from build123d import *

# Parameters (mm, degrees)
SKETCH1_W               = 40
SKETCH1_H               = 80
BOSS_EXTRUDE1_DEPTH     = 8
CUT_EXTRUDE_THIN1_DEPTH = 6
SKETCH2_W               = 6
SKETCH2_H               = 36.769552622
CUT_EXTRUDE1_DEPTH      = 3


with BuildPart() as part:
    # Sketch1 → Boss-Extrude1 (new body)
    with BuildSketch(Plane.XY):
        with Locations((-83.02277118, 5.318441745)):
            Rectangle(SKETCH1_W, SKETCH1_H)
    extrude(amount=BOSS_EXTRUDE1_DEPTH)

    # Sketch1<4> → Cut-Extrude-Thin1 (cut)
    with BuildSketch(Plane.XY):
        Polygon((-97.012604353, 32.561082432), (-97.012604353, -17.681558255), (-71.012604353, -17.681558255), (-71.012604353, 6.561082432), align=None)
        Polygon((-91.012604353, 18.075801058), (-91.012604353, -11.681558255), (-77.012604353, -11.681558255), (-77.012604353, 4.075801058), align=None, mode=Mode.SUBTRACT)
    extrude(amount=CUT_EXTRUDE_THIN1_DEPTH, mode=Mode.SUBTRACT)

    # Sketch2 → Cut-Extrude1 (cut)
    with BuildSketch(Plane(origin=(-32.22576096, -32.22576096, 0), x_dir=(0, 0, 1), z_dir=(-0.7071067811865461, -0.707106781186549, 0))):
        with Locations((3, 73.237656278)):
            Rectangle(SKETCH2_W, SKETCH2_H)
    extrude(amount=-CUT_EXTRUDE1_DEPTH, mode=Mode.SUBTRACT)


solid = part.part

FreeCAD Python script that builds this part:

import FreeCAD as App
import Part
import Sketcher
from FreeCAD import Vector
Q = App.Units.Quantity


def add_polygon(sketch, points):
    """Adds a closed chain of lines whose ends are joined by coincident constraints."""
    first, n = sketch.GeometryCount, len(points)
    for a, b in zip(points, points[1:] + points[:1]):
        sketch.addGeometry(Part.LineSegment(App.Vector(*a, 0), App.Vector(*b, 0)), False)
    for i in range(n):
        sketch.addConstraint(Sketcher.Constraint("Coincident", first + i, 2, first + (i + 1) % n, 1))

doc = App.newDocument("Part")
body = doc.addObject("PartDesign::Body", "Body")

# Sketch on XY plane
sketch1 = body.newObject("Sketcher::SketchObject", "Sketch")
sketch1.AttachmentSupport = (doc.getObject("XY_Plane"), [""])
sketch1.MapMode = "FlatFace"
add_polygon(sketch1, [(-103, 45), (-103, -35), (-63, -35), (-63, 45)])  # lines 0-3
sketch1.addConstraint(Sketcher.Constraint("Vertical", 0))
sketch1.addConstraint(Sketcher.Constraint("Horizontal", 1))
sketch1.addConstraint(Sketcher.Constraint("Vertical", 2))
sketch1.addConstraint(Sketcher.Constraint("Horizontal", 3))
sketch1.addConstraint(Sketcher.Constraint("DistanceX", 1, 1, 1, 2, 40.0))
sketch1.addConstraint(Sketcher.Constraint("DistanceY", 0, 2, 0, 1, 80.0))
sketch1.addConstraint(Sketcher.Constraint("DistanceX", 0, 2, -1, 1, 103.022771))
sketch1.addConstraint(Sketcher.Constraint("DistanceY", 0, 2, -1, 1, 34.681558))
pad1 = body.newObject("PartDesign::Pad", "Pad")
pad1.Profile = sketch1
pad1.Length = 8

# Sketch on XY plane
sketch2 = body.newObject("Sketcher::SketchObject", "Sketch001")
sketch2.AttachmentSupport = (doc.getObject("XY_Plane"), [""])
sketch2.MapMode = "FlatFace"
add_polygon(sketch2, [(-97, 33), (-97, -18), (-71, -18), (-71, 7)])  # lines 0-3
add_polygon(sketch2, [(-91, -12), (-91, 18), (-77, 4), (-77, -12)])  # lines 4-7
sketch2.addConstraint(Sketcher.Constraint("Vertical", 0))
sketch2.addConstraint(Sketcher.Constraint("Horizontal", 1))
sketch2.addConstraint(Sketcher.Constraint("Vertical", 2))
sketch2.addConstraint(Sketcher.Constraint("Vertical", 4))
sketch2.addConstraint(Sketcher.Constraint("Vertical", 6))
sketch2.addConstraint(Sketcher.Constraint("Horizontal", 7))
sketch2.addConstraint(Sketcher.Constraint("Parallel", 3, 5))
sketch2.addConstraint(Sketcher.Constraint("DistanceX", 1, 1, 1, 2, 26.0))
sketch2.addConstraint(Sketcher.Constraint("DistanceX", 7, 2, 7, 1, 14.0))
sketch2.addConstraint(Sketcher.Constraint("Angle", 3, Q("135 deg")))
sketch2.addConstraint(Sketcher.Constraint("DistanceX", 3, 2, 4, 2, 6.0))
sketch2.addConstraint(Sketcher.Constraint("DistanceY", 1, 2, 6, 2, 6.0))
sketch2.addConstraint(Sketcher.Constraint("DistanceY", 0, 2, 0, 1, 50.242641))
sketch2.addConstraint(Sketcher.Constraint("DistanceY", 4, 1, 4, 2, 29.757359))
sketch2.addConstraint(Sketcher.Constraint("DistanceY", -1, 1, 4, 2, 18.075801))
sketch2.addConstraint(Sketcher.Constraint("DistanceX", 0, 2, -1, 1, 97.012604))
pocket1 = body.newObject("PartDesign::Pocket", "Pocket")
pocket1.Profile = sketch2
pocket1.Length = 6
pocket1.Reversed = True

# Sketch on an angled plane
sketch3 = body.newObject("Sketcher::SketchObject", "Sketch002")
sketch3.Placement = App.Placement(Vector(-32.225761, -32.225761, 0), App.Rotation(Vector(0, 0, 1), Vector(-0.707106781, 0.707106781, 0), Vector(-0.707106781, -0.707106781, 0), "ZXY"))
add_polygon(sketch3, [(0, 92), (0, 55), (6, 55), (6, 92)])  # lines 0-3
sketch3.addConstraint(Sketcher.Constraint("Vertical", 0))
sketch3.addConstraint(Sketcher.Constraint("Horizontal", 1))
sketch3.addConstraint(Sketcher.Constraint("Vertical", 2))
sketch3.addConstraint(Sketcher.Constraint("Horizontal", 3))
sketch3.addConstraint(Sketcher.Constraint("PointOnObject", 0, 2, -2))
sketch3.addConstraint(Sketcher.Constraint("DistanceX", 1, 1, 1, 2, 6.0))
sketch3.addConstraint(Sketcher.Constraint("DistanceY", 0, 2, 0, 1, 36.769553))
sketch3.addConstraint(Sketcher.Constraint("DistanceY", -1, 1, 0, 2, 54.85288))
pocket2 = body.newObject("PartDesign::Pocket", "Pocket001")
pocket2.Profile = sketch3
pocket2.Length = 3

doc.recompute()
